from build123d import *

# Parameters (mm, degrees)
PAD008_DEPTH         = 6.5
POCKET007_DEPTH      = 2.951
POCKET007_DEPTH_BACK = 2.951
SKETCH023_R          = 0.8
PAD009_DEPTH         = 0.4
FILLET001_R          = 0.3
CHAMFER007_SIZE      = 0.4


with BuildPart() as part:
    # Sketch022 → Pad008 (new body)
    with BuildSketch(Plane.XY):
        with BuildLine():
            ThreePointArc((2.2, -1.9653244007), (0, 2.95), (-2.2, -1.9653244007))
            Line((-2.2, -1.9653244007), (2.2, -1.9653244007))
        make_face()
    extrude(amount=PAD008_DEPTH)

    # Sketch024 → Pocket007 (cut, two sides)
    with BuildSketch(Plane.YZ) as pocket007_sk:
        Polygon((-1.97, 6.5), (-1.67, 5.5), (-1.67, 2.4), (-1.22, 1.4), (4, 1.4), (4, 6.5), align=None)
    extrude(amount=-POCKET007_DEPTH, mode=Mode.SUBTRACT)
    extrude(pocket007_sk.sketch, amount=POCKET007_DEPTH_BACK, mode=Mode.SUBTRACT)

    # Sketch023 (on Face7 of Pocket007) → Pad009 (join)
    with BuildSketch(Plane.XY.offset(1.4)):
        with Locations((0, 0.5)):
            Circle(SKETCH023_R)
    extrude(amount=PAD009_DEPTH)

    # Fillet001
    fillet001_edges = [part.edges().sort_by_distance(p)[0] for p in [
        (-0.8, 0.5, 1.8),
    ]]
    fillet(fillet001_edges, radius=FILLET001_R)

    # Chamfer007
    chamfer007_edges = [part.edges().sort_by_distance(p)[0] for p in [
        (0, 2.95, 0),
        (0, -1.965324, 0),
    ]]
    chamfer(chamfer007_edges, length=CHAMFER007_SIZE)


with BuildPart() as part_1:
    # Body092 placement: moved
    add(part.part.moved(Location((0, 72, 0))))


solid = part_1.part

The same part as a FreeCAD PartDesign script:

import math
import FreeCAD as App
import Part
import Sketcher
Q = App.Units.Quantity


def edges_at(feature, points):
    """Names of the edges that pass closest to the given points."""
    edges = feature.Shape.Edges
    near = lambda p: min(range(len(edges)), key=lambda i: edges[i].distToShape(Part.Vertex(*p))[0])
    return sorted({f"Edge{near(p) + 1}" for p in points})


def add_polygon(sketch, points):
    """Adds a closed chain of lines whose ends are joined by coincident constraints."""
    first, n = sketch.GeometryCount, len(points)
    for a, b in zip(points, points[1:] + points[:1]):
        sketch.addGeometry(Part.LineSegment(App.Vector(*a, 0), App.Vector(*b, 0)), False)
    for i in range(n):
        sketch.addConstraint(Sketcher.Constraint("Coincident", first + i, 2, first + (i + 1) % n, 1))

doc = App.newDocument("Part")
body = doc.addObject("PartDesign::Body", "Body")

# Sketch on XY plane
sketch1 = doc.addObject("Sketcher::SketchObject", "Sketch")
body.addObject(sketch1)
sketch1.AttachmentSupport = (doc.XY_Plane, [""])
sketch1.MapMode = "FlatFace"
sketch1.addGeometry(Part.ArcOfCircle(Part.Circle(App.Vector(0, 0, 0), App.Vector(0, 0, 1), 3), math.radians(-42), math.radians(222)), False)
sketch1.addGeometry(Part.LineSegment(App.Vector(-2.2, -2, 0), App.Vector(2.2, -2, 0)), False)
sketch1.addConstraint(Sketcher.Constraint("Coincident", 0, 1, 1, 2))
sketch1.addConstraint(Sketcher.Constraint("Coincident", 1, 1, 0, 2))
sketch1.addConstraint(Sketcher.Constraint("Horizontal", 1))
sketch1.addConstraint(Sketcher.Constraint("Coincident", 0, 3, -1, 1))
sketch1.addConstraint(Sketcher.Constraint("Radius", 0, Q("2.95 mm")))
sketch1.addConstraint(Sketcher.Constraint("DistanceX", 1, 1, 1, 2, Q("4.4 mm")))
pad1 = doc.addObject("PartDesign::Pad", "Pad")
body.addObject(pad1)
pad1.Profile = sketch1
pad1.Length = 6.5

# Sketch on YZ plane
sketch2 = doc.addObject("Sketcher::SketchObject", "Sketch001")
body.addObject(sketch2)
sketch2.AttachmentSupport = (doc.YZ_Plane, [""])
sketch2.MapMode = "FlatFace"
add_polygon(sketch2, [(-2, 6.5), (-1.7, 5.5), (-1.7, 2.4), (-1.2, 1.4), (4, 1.4), (4, 6.5)])  # lines 0-5
sketch2.addConstraint(Sketcher.Constraint("Vertical", 1))
sketch2.addConstraint(Sketcher.Constraint("Horizontal", 3))
sketch2.addConstraint(Sketcher.Constraint("Vertical", 4))
sketch2.addConstraint(Sketcher.Constraint("Horizontal", 5))
sketch2.addConstraint(Sketcher.Constraint("DistanceY", 1, 2, 1, 1, Q("3.1 mm")))
sketch2.addConstraint(Sketcher.Constraint("DistanceY", 4, 1, 4, 2, Q("5.1 mm")))
sketch2.addConstraint(Sketcher.Constraint("DistanceX", -1, 1, 3, 2, Q("4 mm")))
sketch2.addConstraint(Sketcher.Constraint("DistanceY", 2, 2, 1, 2, Q("1 mm")))
sketch2.addConstraint(Sketcher.Constraint("DistanceX", 3, 1, 3, 2, Q("5.22 mm")))
sketch2.addConstraint(Sketcher.Constraint("DistanceX", 5, 2, 5, 1, Q("5.97 mm")))
sketch2.addConstraint(Sketcher.Constraint("DistanceY", -1, 1, 0, 2, Q("5.5 mm")))
sketch2.addConstraint(Sketcher.Constraint("DistanceX", 5, 2, 0, 2, Q("0.3 mm")))
pocket1 = doc.addObject("PartDesign::Pocket", "Pocket")
body.addObject(pocket1)
pocket1.Profile = sketch2
pocket1.Type = "ThroughAll"
pocket1.Midplane = True

# Sketch on XY plane
sketch3 = doc.addObject("Sketcher::SketchObject", "Sketch002")
body.addObject(sketch3)
sketch3.AttachmentSupport = (doc.XY_Plane, [""])
sketch3.MapMode = "FlatFace"
sketch3.AttachmentOffset = App.Placement(App.Vector(0, 0, 1.4), App.Rotation())
sketch3.addGeometry(Part.Circle(App.Vector(0, 0.5, 0), App.Vector(0, 0, 1), 0.8), False)
sketch3.addConstraint(Sketcher.Constraint("PointOnObject", 0, 3, -2))
sketch3.addConstraint(Sketcher.Constraint("Diameter", 0, Q("1.6 mm")))
sketch3.addConstraint(Sketcher.Constraint("DistanceY", -1, 1, 0, 3, Q("0.5 mm")))
pad2 = doc.addObject("PartDesign::Pad", "Pad001")
body.addObject(pad2)
pad2.Profile = sketch3
pad2.Length = 0.4
doc.recompute()

fillet = doc.addObject("PartDesign::Fillet", "Fillet")
body.addObject(fillet)
fillet.Base = (pad2, edges_at(pad2, [(-0.8, 0.5, 1.8)]))
fillet.Radius = 0.3
doc.recompute()

chamfer = doc.addObject("PartDesign::Chamfer", "Chamfer")
body.addObject(chamfer)
chamfer.Base = (fillet, edges_at(fillet, [(0, 2.95, 0), (0, -1.965, 0)]))
chamfer.Size = 0.4
body2 = doc.addObject("PartDesign::Body", "Body001")
doc.recompute()

body.Placement = App.Placement(App.Vector(0, 72, 0), App.Rotation(App.Vector(0, 0, 1), 0))
boolean = doc.addObject("PartDesign::Boolean", "Boolean")
body2.addObject(boolean)
boolean.Type = "Fuse"
boolean.addObjects([body])

doc.recompute()
